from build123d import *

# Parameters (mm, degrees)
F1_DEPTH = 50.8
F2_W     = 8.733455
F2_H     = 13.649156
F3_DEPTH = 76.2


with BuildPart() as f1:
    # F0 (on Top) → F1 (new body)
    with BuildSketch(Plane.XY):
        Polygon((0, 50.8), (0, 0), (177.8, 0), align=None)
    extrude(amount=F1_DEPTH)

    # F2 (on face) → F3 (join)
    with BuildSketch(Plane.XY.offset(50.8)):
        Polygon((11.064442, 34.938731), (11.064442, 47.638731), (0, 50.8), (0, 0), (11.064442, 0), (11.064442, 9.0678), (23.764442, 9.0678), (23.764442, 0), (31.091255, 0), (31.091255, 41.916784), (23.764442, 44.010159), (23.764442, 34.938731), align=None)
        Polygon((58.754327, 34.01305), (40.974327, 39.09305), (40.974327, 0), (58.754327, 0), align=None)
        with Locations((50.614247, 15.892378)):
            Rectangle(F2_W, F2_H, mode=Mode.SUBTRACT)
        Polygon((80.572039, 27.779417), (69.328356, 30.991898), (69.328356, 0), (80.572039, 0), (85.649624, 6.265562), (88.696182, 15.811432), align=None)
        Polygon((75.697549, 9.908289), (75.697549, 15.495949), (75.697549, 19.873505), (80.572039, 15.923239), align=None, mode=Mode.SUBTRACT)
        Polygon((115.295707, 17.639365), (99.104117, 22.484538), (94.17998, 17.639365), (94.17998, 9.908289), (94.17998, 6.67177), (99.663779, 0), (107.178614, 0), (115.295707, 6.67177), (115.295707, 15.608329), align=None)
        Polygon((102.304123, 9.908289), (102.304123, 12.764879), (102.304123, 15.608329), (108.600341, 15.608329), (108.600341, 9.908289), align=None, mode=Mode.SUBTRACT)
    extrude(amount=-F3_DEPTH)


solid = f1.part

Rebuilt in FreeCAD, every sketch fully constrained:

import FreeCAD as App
import Part
import Sketcher
Q = App.Units.Quantity

doc = App.newDocument("Part")
body = doc.addObject("PartDesign::Body", "Body")

# Sketch on XY plane
sketch1 = body.newObject("Sketcher::SketchObject", "Sketch")
sketch1.AttachmentSupport = (doc.getObject("XY_Plane"), [""])
sketch1.MapMode = "FlatFace"
sketch1.addGeometry(Part.LineSegment(App.Vector(0, 51, 0), App.Vector(0, 0, 0)), False)
sketch1.addGeometry(Part.LineSegment(App.Vector(0, 0, 0), App.Vector(178, 0, 0)), False)
sketch1.addGeometry(Part.LineSegment(App.Vector(178, 0, 0), App.Vector(0, 51, 0)), False)
sketch1.addConstraint(Sketcher.Constraint("Coincident", 0, 2, 1, 1))
sketch1.addConstraint(Sketcher.Constraint("Coincident", 1, 2, 2, 1))
sketch1.addConstraint(Sketcher.Constraint("Coincident", 2, 2, 0, 1))
sketch1.addConstraint(Sketcher.Constraint("Vertical", 0))
sketch1.addConstraint(Sketcher.Constraint("Horizontal", 1))
sketch1.addConstraint(Sketcher.Constraint("Coincident", 0, 2, -1, 1))
sketch1.addConstraint(Sketcher.Constraint("DistanceX", 1, 1, 1, 2, Q("7 in")))
sketch1.addConstraint(Sketcher.Constraint("DistanceY", 0, 2, 0, 1, Q("2 in")))
pad1 = body.newObject("PartDesign::Pad", "Pad")
pad1.Profile = sketch1
pad1.Length = Q("2 in")

# Sketch on XY plane
sketch2 = body.newObject("Sketcher::SketchObject", "Sketch001")
sketch2.AttachmentSupport = (doc.getObject("XY_Plane"), [""])
sketch2.MapMode = "FlatFace"
sketch2.AttachmentOffset = App.Placement(App.Vector(0, 0, 2 * 25.4), App.Rotation())
sketch2.addGeometry(Part.LineSegment(App.Vector(11, 35, 0), App.Vector(11, 48, 0)), False)
sketch2.addGeometry(Part.LineSegment(App.Vector(11, 48, 0), App.Vector(0, 51, 0)), False)
sketch2.addGeometry(Part.LineSegment(App.Vector(0, 51, 0), App.Vector(0, 0, 0)), False)
sketch2.addGeometry(Part.LineSegment(App.Vector(0, 0, 0), App.Vector(11, 0, 0)), False)
sketch2.addGeometry(Part.LineSegment(App.Vector(11, 0, 0), App.Vector(11, 9, 0)), False)
sketch2.addGeometry(Part.LineSegment(App.Vector(11, 9, 0), App.Vector(24, 9, 0)), False)
sketch2.addGeometry(Part.LineSegment(App.Vector(24, 9, 0), App.Vector(24, 0, 0)), False)
sketch2.addGeometry(Part.LineSegment(App.Vector(24, 0, 0), App.Vector(31, 0, 0)), False)
sketch2.addGeometry(Part.LineSegment(App.Vector(31, 0, 0), App.Vector(31, 42, 0)), False)
sketch2.addGeometry(Part.LineSegment(App.Vector(31, 42, 0), App.Vector(24, 44, 0)), False)
sketch2.addGeometry(Part.LineSegment(App.Vector(24, 44, 0), App.Vector(24, 35, 0)), False)
sketch2.addGeometry(Part.LineSegment(App.Vector(24, 35, 0), App.Vector(11, 35, 0)), False)
sketch2.addGeometry(Part.LineSegment(App.Vector(59, 34, 0), App.Vector(41, 39, 0)), False)
sketch2.addGeometry(Part.LineSegment(App.Vector(41, 39, 0), App.Vector(41, 0, 0)), False)
sketch2.addGeometry(Part.LineSegment(App.Vector(41, 0, 0), App.Vector(59, 0, 0)), False)
sketch2.addGeometry(Part.LineSegment(App.Vector(59, 0, 0), App.Vector(59, 34, 0)), False)
sketch2.addGeometry(Part.LineSegment(App.Vector(55, 9, 0), App.Vector(46, 9, 0)), False)
sketch2.addGeometry(Part.LineSegment(App.Vector(46, 9, 0), App.Vector(46, 23, 0)), False)
sketch2.addGeometry(Part.LineSegment(App.Vector(46, 23, 0), App.Vector(55, 23, 0)), False)
sketch2.addGeometry(Part.LineSegment(App.Vector(55, 23, 0), App.Vector(55, 9, 0)), False)
sketch2.addGeometry(Part.LineSegment(App.Vector(81, 28, 0), App.Vector(69, 31, 0)), False)
sketch2.addGeometry(Part.LineSegment(App.Vector(69, 31, 0), App.Vector(69, 0, 0)), False)
sketch2.addGeometry(Part.LineSegment(App.Vector(69, 0, 0), App.Vector(81, 0, 0)), False)
sketch2.addGeometry(Part.LineSegment(App.Vector(81, 0, 0), App.Vector(86, 6, 0)), False)
sketch2.addGeometry(Part.LineSegment(App.Vector(86, 6, 0), App.Vector(89, 16, 0)), False)
sketch2.addGeometry(Part.LineSegment(App.Vector(89, 16, 0), App.Vector(81, 28, 0)), False)
sketch2.addGeometry(Part.LineSegment(App.Vector(81, 16, 0), App.Vector(76, 10, 0)), False)
sketch2.addGeometry(Part.LineSegment(App.Vector(76, 10, 0), App.Vector(76, 20, 0)), False)
sketch2.addGeometry(Part.LineSegment(App.Vector(76, 20, 0), App.Vector(81, 16, 0)), False)
sketch2.addGeometry(Part.LineSegment(App.Vector(115, 18, 0), App.Vector(99, 22, 0)), False)
sketch2.addGeometry(Part.LineSegment(App.Vector(99, 22, 0), App.Vector(94, 18, 0)), False)
sketch2.addGeometry(Part.LineSegment(App.Vector(94, 18, 0), App.Vector(94, 7, 0)), False)
sketch2.addGeometry(Part.LineSegment(App.Vector(94, 7, 0), App.Vector(100, 0, 0)), False)
sketch2.addGeometry(Part.LineSegment(App.Vector(100, 0, 0), App.Vector(107, 0, 0)), False)
sketch2.addGeometry(Part.LineSegment(App.Vector(107, 0, 0), App.Vector(115, 7, 0)), False)
sketch2.addGeometry(Part.LineSegment(App.Vector(115, 7, 0), App.Vector(115, 18, 0)), False)
sketch2.addGeometry(Part.LineSegment(App.Vector(109, 10, 0), App.Vector(102, 10, 0)), False)
sketch2.addGeometry(Part.LineSegment(App.Vector(102, 10, 0), App.Vector(102, 16, 0)), False)
sketch2.addGeometry(Part.LineSegment(App.Vector(102, 16, 0), App.Vector(109, 16, 0)), False)
sketch2.addGeometry(Part.LineSegment(App.Vector(109, 16, 0), App.Vector(109, 10, 0)), False)
sketch2.addConstraint(Sketcher.Constraint("Coincident", 0, 2, 1, 1))
sketch2.addConstraint(Sketcher.Constraint("Coincident", 1, 2, 2, 1))
sketch2.addConstraint(Sketcher.Constraint("Coincident", 2, 2, 3, 1))
sketch2.addConstraint(Sketcher.Constraint("Coincident", 3, 2, 4, 1))
sketch2.addConstraint(Sketcher.Constraint("Coincident", 4, 2, 5, 1))
sketch2.addConstraint(Sketcher.Constraint("Coincident", 5, 2, 6, 1))
sketch2.addConstraint(Sketcher.Constraint("Coincident", 6, 2, 7, 1))
sketch2.addConstraint(Sketcher.Constraint("Coincident", 7, 2, 8, 1))
sketch2.addConstraint(Sketcher.Constraint("Coincident", 8, 2, 9, 1))
sketch2.addConstraint(Sketcher.Constraint("Coincident", 9, 2, 10, 1))
sketch2.addConstraint(Sketcher.Constraint("Coincident", 10, 2, 11, 1))
sketch2.addConstraint(Sketcher.Constraint("Coincident", 11, 2, 0, 1))
sketch2.addConstraint(Sketcher.Constraint("Coincident", 12, 2, 13, 1))
sketch2.addConstraint(Sketcher.Constraint("Coincident", 13, 2, 14, 1))
sketch2.addConstraint(Sketcher.Constraint("Coincident", 14, 2, 15, 1))
sketch2.addConstraint(Sketcher.Constraint("Coincident", 15, 2, 12, 1))
sketch2.addConstraint(Sketcher.Constraint("Coincident", 16, 2, 17, 1))
sketch2.addConstraint(Sketcher.Constraint("Coincident", 17, 2, 18, 1))
sketch2.addConstraint(Sketcher.Constraint("Coincident", 18, 2, 19, 1))
sketch2.addConstraint(Sketcher.Constraint("Coincident", 19, 2, 16, 1))
sketch2.addConstraint(Sketcher.Constraint("Coincident", 20, 2, 21, 1))
sketch2.addConstraint(Sketcher.Constraint("Coincident", 21, 2, 22, 1))
sketch2.addConstraint(Sketcher.Constraint("Coincident", 22, 2, 23, 1))
sketch2.addConstraint(Sketcher.Constraint("Coincident", 23, 2, 24, 1))
sketch2.addConstraint(Sketcher.Constraint("Coincident", 24, 2, 25, 1))
sketch2.addConstraint(Sketcher.Constraint("Coincident", 25, 2, 20, 1))
sketch2.addConstraint(Sketcher.Constraint("Coincident", 26, 2, 27, 1))
sketch2.addConstraint(Sketcher.Constraint("Coincident", 27, 2, 28, 1))
sketch2.addConstraint(Sketcher.Constraint("Coincident", 28, 2, 26, 1))
sketch2.addConstraint(Sketcher.Constraint("Coincident", 29, 2, 30, 1))
sketch2.addConstraint(Sketcher.Constraint("Coincident", 30, 2, 31, 1))
sketch2.addConstraint(Sketcher.Constraint("Coincident", 31, 2, 32, 1))
sketch2.addConstraint(Sketcher.Constraint("Coincident", 32, 2, 33, 1))
sketch2.addConstraint(Sketcher.Constraint("Coincident", 33, 2, 34, 1))
sketch2.addConstraint(Sketcher.Constraint("Coincident", 34, 2, 35, 1))
sketch2.addConstraint(Sketcher.Constraint("Coincident", 35, 2, 29, 1))
sketch2.addConstraint(Sketcher.Constraint("Coincident", 36, 2, 37, 1))
sketch2.addConstraint(Sketcher.Constraint("Coincident", 37, 2, 38, 1))
sketch2.addConstraint(Sketcher.Constraint("Coincident", 38, 2, 39, 1))
sketch2.addConstraint(Sketcher.Constraint("Coincident", 39, 2, 36, 1))
sketch2.addConstraint(Sketcher.Constraint("Vertical", 0))
sketch2.addConstraint(Sketcher.Constraint("Vertical", 2))
sketch2.addConstraint(Sketcher.Constraint("Horizontal", 3))
sketch2.addConstraint(Sketcher.Constraint("Vertical", 4))
sketch2.addConstraint(Sketcher.Constraint("Horizontal", 5))
sketch2.addConstraint(Sketcher.Constraint("Vertical", 6))
sketch2.addConstraint(Sketcher.Constraint("Horizontal", 7))
sketch2.addConstraint(Sketcher.Constraint("Vertical", 8))
sketch2.addConstraint(Sketcher.Constraint("Vertical", 10))
sketch2.addConstraint(Sketcher.Constraint("Horizontal", 11))
sketch2.addConstraint(Sketcher.Constraint("Vertical", 13))
sketch2.addConstraint(Sketcher.Constraint("Horizontal", 14))
sketch2.addConstraint(Sketcher.Constraint("Vertical", 15))
sketch2.addConstraint(Sketcher.Constraint("Horizontal", 16))
sketch2.addConstraint(Sketcher.Constraint("Vertical", 17))
sketch2.addConstraint(Sketcher.Constraint("Horizontal", 18))
sketch2.addConstraint(Sketcher.Constraint("Vertical", 19))
sketch2.addConstraint(Sketcher.Constraint("Vertical", 21))
sketch2.addConstraint(Sketcher.Constraint("Horizontal", 22))
sketch2.addConstraint(Sketcher.Constraint("Vertical", 27))
sketch2.addConstraint(Sketcher.Constraint("Vertical", 31))
sketch2.addConstraint(Sketcher.Constraint("Horizontal", 33))
sketch2.addConstraint(Sketcher.Constraint("Vertical", 35))
sketch2.addConstraint(Sketcher.Constraint("Horizontal", 36))
sketch2.addConstraint(Sketcher.Constraint("Vertical", 37))
sketch2.addConstraint(Sketcher.Constraint("Horizontal", 38))
sketch2.addConstraint(Sketcher.Constraint("Vertical", 39))
sketch2.addConstraint(Sketcher.Constraint("Coincident", 2, 2, -1, 1))
sketch2.addConstraint(Sketcher.Constraint("PointOnObject", 6, 2, -1))
sketch2.addConstraint(Sketcher.Constraint("PointOnObject", 13, 2, -1))
sketch2.addConstraint(Sketcher.Constraint("PointOnObject", 21, 2, -1))
sketch2.addConstraint(Sketcher.Constraint("PointOnObject", 32, 2, -1))
sketch2.addConstraint(Sketcher.Constraint("Parallel", 1, 9))
sketch2.addConstraint(Sketcher.Constraint("Parallel", 9, 12))
sketch2.addConstraint(Sketcher.Constraint("Parallel", 12, 20))
sketch2.addConstraint(Sketcher.Constraint("Parallel", 23, 26))
sketch2.addConstraint(Sketcher.Constraint("Perpendicular", 26, 28))
sketch2.addConstraint(Sketcher.Constraint("Perpendicular", 32, 34))
sketch2.addConstraint(Sketcher.Constraint("Horizontal", 5, 2, 16, 2))
sketch2.addConstraint(Sketcher.Constraint("Horizontal", 31, 2, 34, 2))
sketch2.addConstraint(Sketcher.Constraint("Horizontal", 30, 2, 35, 2))
sketch2.addConstraint(Sketcher.Constraint("Horizontal", 26, 2, 36, 2))
sketch2.addConstraint(Sketcher.Constraint("Vertical", 0, 2, 3, 2))
sketch2.addConstraint(Sketcher.Constraint("Vertical", 6, 2, 9, 2))
sketch2.addConstraint(Sketcher.Constraint("Vertical", 22, 2, 25, 2))
sketch2.addConstraint(Sketcher.Constraint("Vertical", 25, 2, 28, 2))
sketch2.addConstraint(Sketcher.Constraint("Equal", 11, 0))
sketch2.addConstraint(Sketcher.Constraint("DistanceY", 2, 2, 2, 1, Q("2 in")))
sketch2.addConstraint(Sketcher.Constraint("DistanceX", 5, 1, 5, 2, Q("0.5 in")))
sketch2.addConstraint(Sketcher.Constraint("DistanceX", 14, 1, 14, 2, Q("0.7 in")))
sketch2.addConstraint(Sketcher.Constraint("Distance", 9, Q("0.3 in")))
sketch2.addConstraint(Sketcher.Constraint("DistanceY", 15, 2, 12, 2, Q("0.2 in")))
sketch2.addConstraint(Sketcher.Constraint("DistanceY", 4, 1, 4, 2, Q("0.357 in")))
sketch2.addConstraint(Sketcher.Constraint("DistanceY", 10, 2, 10, 1, 9.071428))
sketch2.addConstraint(Sketcher.Constraint("DistanceY", 13, 2, 13, 1, 39.09305))
sketch2.addConstraint(Sketcher.Constraint("DistanceY", 37, 1, 37, 2, 5.70004))
sketch2.addConstraint(Sketcher.Constraint("DistanceY", 19, 2, 20, 2, 21.924098))
sketch2.addConstraint(Sketcher.Constraint("DistanceY", 28, 2, 29, 2, 6.561299))
sketch2.addConstraint(Sketcher.Constraint("DistanceX", 24, 2, 30, 2, 5.483798))
sketch2.addConstraint(Sketcher.Constraint("DistanceX", 31, 2, 32, 2, 5.483799))
sketch2.addConstraint(Sketcher.Constraint("Distance", 26, 7.742111))
sketch2.addConstraint(Sketcher.Constraint("Distance", 30, 6.908171))
sketch2.addConstraint(Sketcher.Constraint("DistanceX", 3, 1, 3, 2, 11.064442))
sketch2.addConstraint(Sketcher.Constraint("DistanceX", 16, 2, 16, 1, 8.733455))
sketch2.addConstraint(Sketcher.Constraint("DistanceX", 22, 1, 22, 2, 11.243683))
sketch2.addConstraint(Sketcher.Constraint("DistanceX", 33, 1, 33, 2, 7.514835))
sketch2.addConstraint(Sketcher.Constraint("DistanceX", 36, 2, 36, 1, 6.296218))
sketch2.addConstraint(Sketcher.Constraint("DistanceY", 17, 1, 17, 2, 13.649156))
sketch2.addConstraint(Sketcher.Constraint("DistanceY", 27, 1, 27, 2, 9.965216))
sketch2.addConstraint(Sketcher.Constraint("DistanceY", 31, 2, 31, 1, 10.967595))
sketch2.addConstraint(Sketcher.Constraint("DistanceX", -1, 1, 16, 2, 46.24752))
sketch2.addConstraint(Sketcher.Constraint("DistanceX", -1, 1, 22, 2, 80.572039))
sketch2.addConstraint(Sketcher.Constraint("DistanceX", -1, 1, 24, 2, 88.696182))
sketch2.addConstraint(Sketcher.Constraint("DistanceY", -1, 1, 26, 2, 9.908289))
sketch2.addConstraint(Sketcher.Constraint("DistanceY", -1, 1, 31, 2, 6.67177))
sketch2.addConstraint(Sketcher.Constraint("DistanceX", -1, 1, 38, 2, 108.600341))
sketch2.addConstraint(Sketcher.Constraint("DistanceX", 15, 2, 20, 2, 10.574029))
sketch2.addConstraint(Sketcher.Constraint("DistanceX", 21, 2, 23, 2, 16.321268))
sketch2.addConstraint(Sketcher.Constraint("DistanceY", 23, 2, 24, 2, 9.54587))
pad2 = body.newObject("PartDesign::Pad", "Pad001")
pad2.Profile = sketch2
pad2.Length = Q("3 in")
pad2.Reversed = True

doc.recompute()
